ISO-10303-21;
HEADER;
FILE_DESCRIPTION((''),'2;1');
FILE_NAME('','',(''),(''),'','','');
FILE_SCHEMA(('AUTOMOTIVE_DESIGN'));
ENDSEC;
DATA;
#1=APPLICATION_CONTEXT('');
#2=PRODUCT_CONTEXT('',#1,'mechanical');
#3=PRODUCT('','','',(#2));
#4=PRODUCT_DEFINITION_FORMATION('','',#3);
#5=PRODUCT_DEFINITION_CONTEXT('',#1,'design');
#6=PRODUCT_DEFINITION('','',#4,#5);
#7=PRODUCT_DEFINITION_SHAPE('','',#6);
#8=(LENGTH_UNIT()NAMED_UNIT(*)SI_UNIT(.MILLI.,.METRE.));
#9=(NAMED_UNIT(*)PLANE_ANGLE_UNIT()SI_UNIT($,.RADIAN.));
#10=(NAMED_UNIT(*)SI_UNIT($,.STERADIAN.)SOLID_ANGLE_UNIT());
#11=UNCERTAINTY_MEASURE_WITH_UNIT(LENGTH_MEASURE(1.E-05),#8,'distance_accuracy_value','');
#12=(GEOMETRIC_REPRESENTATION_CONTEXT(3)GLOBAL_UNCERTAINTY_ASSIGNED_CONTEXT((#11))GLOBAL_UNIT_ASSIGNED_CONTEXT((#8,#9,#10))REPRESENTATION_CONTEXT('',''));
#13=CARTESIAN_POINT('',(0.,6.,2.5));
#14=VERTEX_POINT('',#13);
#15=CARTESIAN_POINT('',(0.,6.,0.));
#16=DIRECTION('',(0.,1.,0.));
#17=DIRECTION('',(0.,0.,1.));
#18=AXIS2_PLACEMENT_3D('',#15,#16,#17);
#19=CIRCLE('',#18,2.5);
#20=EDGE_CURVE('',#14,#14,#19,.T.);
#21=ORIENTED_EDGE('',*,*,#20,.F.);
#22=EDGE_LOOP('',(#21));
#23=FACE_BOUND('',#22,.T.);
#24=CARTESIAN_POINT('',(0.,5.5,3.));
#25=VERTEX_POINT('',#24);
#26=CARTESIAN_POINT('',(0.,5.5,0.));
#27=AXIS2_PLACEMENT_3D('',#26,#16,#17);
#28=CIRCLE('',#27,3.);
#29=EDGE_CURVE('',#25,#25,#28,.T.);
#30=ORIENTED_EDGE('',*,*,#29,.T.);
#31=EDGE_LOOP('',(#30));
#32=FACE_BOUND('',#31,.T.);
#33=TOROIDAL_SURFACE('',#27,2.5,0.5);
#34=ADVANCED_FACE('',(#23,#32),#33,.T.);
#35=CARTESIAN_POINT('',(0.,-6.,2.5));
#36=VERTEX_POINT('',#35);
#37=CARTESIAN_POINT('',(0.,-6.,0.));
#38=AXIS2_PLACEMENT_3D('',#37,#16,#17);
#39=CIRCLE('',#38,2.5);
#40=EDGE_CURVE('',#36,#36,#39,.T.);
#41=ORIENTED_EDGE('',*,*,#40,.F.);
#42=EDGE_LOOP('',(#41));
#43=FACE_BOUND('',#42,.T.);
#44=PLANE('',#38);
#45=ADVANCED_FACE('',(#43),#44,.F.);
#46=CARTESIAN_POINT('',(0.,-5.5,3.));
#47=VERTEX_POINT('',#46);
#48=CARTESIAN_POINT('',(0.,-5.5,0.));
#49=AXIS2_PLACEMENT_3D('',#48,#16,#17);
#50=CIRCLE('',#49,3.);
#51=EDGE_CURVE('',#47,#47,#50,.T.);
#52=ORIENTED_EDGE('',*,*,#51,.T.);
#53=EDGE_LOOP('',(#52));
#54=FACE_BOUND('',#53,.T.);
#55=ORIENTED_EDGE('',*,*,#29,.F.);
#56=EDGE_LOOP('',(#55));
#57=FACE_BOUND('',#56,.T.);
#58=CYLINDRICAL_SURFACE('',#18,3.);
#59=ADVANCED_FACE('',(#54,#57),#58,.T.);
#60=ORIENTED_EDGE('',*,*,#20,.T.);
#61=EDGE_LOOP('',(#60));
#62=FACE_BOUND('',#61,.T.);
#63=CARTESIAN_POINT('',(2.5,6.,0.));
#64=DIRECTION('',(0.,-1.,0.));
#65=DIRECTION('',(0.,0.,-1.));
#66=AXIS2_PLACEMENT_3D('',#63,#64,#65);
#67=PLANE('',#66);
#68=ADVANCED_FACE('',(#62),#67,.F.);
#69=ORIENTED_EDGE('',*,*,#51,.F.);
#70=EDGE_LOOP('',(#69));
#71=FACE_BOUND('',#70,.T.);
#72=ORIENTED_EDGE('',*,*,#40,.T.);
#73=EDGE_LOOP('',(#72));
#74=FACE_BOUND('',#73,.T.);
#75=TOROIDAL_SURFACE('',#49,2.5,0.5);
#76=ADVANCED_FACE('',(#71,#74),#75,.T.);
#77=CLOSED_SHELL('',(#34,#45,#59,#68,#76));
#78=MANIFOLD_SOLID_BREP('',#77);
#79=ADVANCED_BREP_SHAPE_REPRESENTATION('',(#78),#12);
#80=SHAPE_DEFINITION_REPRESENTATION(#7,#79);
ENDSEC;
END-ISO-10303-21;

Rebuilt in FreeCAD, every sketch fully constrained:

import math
import FreeCAD as App
import Part
import Sketcher

V = App.Vector
Q = App.Units.Quantity

doc = App.newDocument("Part")
params = doc.addObject("Spreadsheet::Sheet", "Params")
for row, (alias, value) in enumerate([
    ("sketch1_radius", "0.5 mm"),
    ("sketch1_height", "12 mm"),
    ("sketch1_width", "2.5 mm"),
    ("revolution_angle", "360 deg"),
], start=1):
    params.set(f"A{row}", alias)
    params.set(f"B{row}", "=" + value)
    params.setAlias(f"B{row}", alias)

body = doc.addObject("PartDesign::Body", "Body")

sketch1 = doc.addObject("Sketcher::SketchObject", "Sketch")
body.addObject(sketch1)
sketch1.AttachmentSupport = (doc.XY_Plane, [""])
sketch1.MapMode = "FlatFace"
sketch1.addGeometry([
    Part.LineSegment(V(0, 6, 0), V(0, -6, 0)),
    Part.LineSegment(V(0, -6, 0), V(2.5, -6, 0)),
    Part.ArcOfCircle(Part.Circle(V(2.5, -5.5, 0), V(0, 0, 1), 0.5), math.radians(-90), math.radians(0)),
    Part.LineSegment(V(3, -5.5, 0), V(3, 5.5, 0)),
    Part.ArcOfCircle(Part.Circle(V(2.5, 5.5, 0), V(0, 0, 1), 0.5), math.radians(0), math.radians(90)),
    Part.LineSegment(V(2.5, 6, 0), V(0, 6, 0)),
], False)
sketch1.addConstraint([
    Sketcher.Constraint("Coincident", 0, 2, 1, 1),
    Sketcher.Constraint("Tangent", 1, 2, 2, 1),
    Sketcher.Constraint("Tangent", 2, 2, 3, 1),
    Sketcher.Constraint("Tangent", 3, 2, 4, 1),
    Sketcher.Constraint("Tangent", 4, 2, 5, 1),
    Sketcher.Constraint("Coincident", 5, 2, 0, 1),
    Sketcher.Constraint("Vertical", 0),
    Sketcher.Constraint("Horizontal", 1),
    Sketcher.Constraint("Vertical", 3),
    Sketcher.Constraint("Horizontal", 5),
    Sketcher.Constraint("Equal", 2, 4),
    Sketcher.Constraint("Symmetric", 0, 2, 5, 2, -1, 1),
    Sketcher.Constraint("Radius", 2, Q("0.5 mm")),
    Sketcher.Constraint("DistanceY", 0, 2, 0, 1, Q("12 mm")),
    Sketcher.Constraint("DistanceX", 1, 1, 1, 2, Q("2.5 mm")),
])
sketch1.setExpression("Constraints[12]", "Params.sketch1_radius")
sketch1.setExpression("Constraints[13]", "Params.sketch1_height")
sketch1.setExpression("Constraints[14]", "Params.sketch1_width")
revolution = doc.addObject("PartDesign::Revolution", "Revolution")
body.addObject(revolution)
revolution.Profile = sketch1
revolution.ReferenceAxis = (sketch1, ["V_Axis"])
revolution.setExpression("Angle", "Params.revolution_angle")

doc.recompute()
